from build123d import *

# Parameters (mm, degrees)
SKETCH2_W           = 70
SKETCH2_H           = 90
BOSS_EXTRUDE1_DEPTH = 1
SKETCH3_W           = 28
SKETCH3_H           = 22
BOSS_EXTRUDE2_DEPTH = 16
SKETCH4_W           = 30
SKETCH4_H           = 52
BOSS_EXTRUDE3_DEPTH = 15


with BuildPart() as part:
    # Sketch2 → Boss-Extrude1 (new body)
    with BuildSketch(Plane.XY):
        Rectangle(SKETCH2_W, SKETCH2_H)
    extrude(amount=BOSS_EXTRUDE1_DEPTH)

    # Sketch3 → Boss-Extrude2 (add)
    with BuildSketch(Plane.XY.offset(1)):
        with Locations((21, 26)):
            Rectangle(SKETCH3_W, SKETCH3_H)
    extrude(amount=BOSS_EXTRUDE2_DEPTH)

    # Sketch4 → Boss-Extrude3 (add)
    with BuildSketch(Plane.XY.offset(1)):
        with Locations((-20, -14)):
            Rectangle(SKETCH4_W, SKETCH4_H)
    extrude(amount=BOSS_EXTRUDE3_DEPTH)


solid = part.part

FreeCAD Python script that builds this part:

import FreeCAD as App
import Part
import Sketcher

V = App.Vector

doc = App.newDocument("Part")
body = doc.addObject("PartDesign::Body", "Body")

# Sketch on XY plane
sketch1 = doc.addObject("Sketcher::SketchObject", "Sketch")
body.addObject(sketch1)
sketch1.AttachmentSupport = (doc.XY_Plane, [""])
sketch1.MapMode = "FlatFace"
sketch1.addGeometry(Part.LineSegment(V(-35, 45, 0), V(-35, -45, 0)), False)
sketch1.addGeometry(Part.LineSegment(V(-35, -45, 0), V(35, -45, 0)), False)
sketch1.addGeometry(Part.LineSegment(V(35, -45, 0), V(35, 45, 0)), False)
sketch1.addGeometry(Part.LineSegment(V(35, 45, 0), V(-35, 45, 0)), False)
sketch1.addConstraint(Sketcher.Constraint("Coincident", 0, 2, 1, 1))
sketch1.addConstraint(Sketcher.Constraint("Coincident", 1, 2, 2, 1))
sketch1.addConstraint(Sketcher.Constraint("Coincident", 2, 2, 3, 1))
sketch1.addConstraint(Sketcher.Constraint("Coincident", 3, 2, 0, 1))
sketch1.addConstraint(Sketcher.Constraint("Vertical", 0))
sketch1.addConstraint(Sketcher.Constraint("Horizontal", 1))
sketch1.addConstraint(Sketcher.Constraint("Vertical", 2))
sketch1.addConstraint(Sketcher.Constraint("Horizontal", 3))
sketch1.addConstraint(Sketcher.Constraint("Symmetric", 0, 2, 2, 2, -1, 1))
sketch1.addConstraint(Sketcher.Constraint("DistanceX", 1, 1, 1, 2, 70.0))
sketch1.addConstraint(Sketcher.Constraint("DistanceY", 0, 2, 0, 1, 90.0))
pad1 = doc.addObject("PartDesign::Pad", "Pad")
body.addObject(pad1)
pad1.Profile = sketch1
pad1.Length = 1

# Sketch on XY plane
sketch2 = doc.addObject("Sketcher::SketchObject", "Sketch001")
body.addObject(sketch2)
sketch2.AttachmentSupport = (doc.XY_Plane, [""])
sketch2.MapMode = "FlatFace"
sketch2.AttachmentOffset = App.Placement(V(0, 0, 1), App.Rotation())
sketch2.addGeometry(Part.LineSegment(V(7, 37, 0), V(7, 15, 0)), False)
sketch2.addGeometry(Part.LineSegment(V(7, 15, 0), V(35, 15, 0)), False)
sketch2.addGeometry(Part.LineSegment(V(35, 15, 0), V(35, 37, 0)), False)
sketch2.addGeometry(Part.LineSegment(V(35, 37, 0), V(7, 37, 0)), False)
sketch2.addConstraint(Sketcher.Constraint("Coincident", 0, 2, 1, 1))
sketch2.addConstraint(Sketcher.Constraint("Coincident", 1, 2, 2, 1))
sketch2.addConstraint(Sketcher.Constraint("Coincident", 2, 2, 3, 1))
sketch2.addConstraint(Sketcher.Constraint("Coincident", 3, 2, 0, 1))
sketch2.addConstraint(Sketcher.Constraint("Vertical", 0))
sketch2.addConstraint(Sketcher.Constraint("Horizontal", 1))
sketch2.addConstraint(Sketcher.Constraint("Vertical", 2))
sketch2.addConstraint(Sketcher.Constraint("Horizontal", 3))
sketch2.addConstraint(Sketcher.Constraint("DistanceX", 1, 1, 1, 2, 28.0))
sketch2.addConstraint(Sketcher.Constraint("DistanceY", 0, 2, 0, 1, 22.0))
sketch2.addConstraint(Sketcher.Constraint("DistanceX", -1, 1, 0, 2, 7.0))
sketch2.addConstraint(Sketcher.Constraint("DistanceY", -1, 1, 0, 2, 15.0))
pad2 = doc.addObject("PartDesign::Pad", "Pad001")
body.addObject(pad2)
pad2.Profile = sketch2
pad2.Length = 16

# Sketch on XY plane
sketch3 = doc.addObject("Sketcher::SketchObject", "Sketch002")
body.addObject(sketch3)
sketch3.AttachmentSupport = (doc.XY_Plane, [""])
sketch3.MapMode = "FlatFace"
sketch3.AttachmentOffset = App.Placement(V(0, 0, 1), App.Rotation())
sketch3.addGeometry(Part.LineSegment(V(-35, 12, 0), V(-35, -40, 0)), False)
sketch3.addGeometry(Part.LineSegment(V(-35, -40, 0), V(-5, -40, 0)), False)
sketch3.addGeometry(Part.LineSegment(V(-5, -40, 0), V(-5, 12, 0)), False)
sketch3.addGeometry(Part.LineSegment(V(-5, 12, 0), V(-35, 12, 0)), False)
sketch3.addConstraint(Sketcher.Constraint("Coincident", 0, 2, 1, 1))
sketch3.addConstraint(Sketcher.Constraint("Coincident", 1, 2, 2, 1))
sketch3.addConstraint(Sketcher.Constraint("Coincident", 2, 2, 3, 1))
sketch3.addConstraint(Sketcher.Constraint("Coincident", 3, 2, 0, 1))
sketch3.addConstraint(Sketcher.Constraint("Vertical", 0))
sketch3.addConstraint(Sketcher.Constraint("Horizontal", 1))
sketch3.addConstraint(Sketcher.Constraint("Vertical", 2))
sketch3.addConstraint(Sketcher.Constraint("Horizontal", 3))
sketch3.addConstraint(Sketcher.Constraint("DistanceX", 1, 1, 1, 2, 30.0))
sketch3.addConstraint(Sketcher.Constraint("DistanceY", 0, 2, 0, 1, 52.0))
sketch3.addConstraint(Sketcher.Constraint("DistanceX", 0, 2, -1, 1, 35.0))
sketch3.addConstraint(Sketcher.Constraint("DistanceY", 0, 2, -1, 1, 40.0))
pad3 = doc.addObject("PartDesign::Pad", "Pad002")
body.addObject(pad3)
pad3.Profile = sketch3
pad3.Length = 15

doc.recompute()
